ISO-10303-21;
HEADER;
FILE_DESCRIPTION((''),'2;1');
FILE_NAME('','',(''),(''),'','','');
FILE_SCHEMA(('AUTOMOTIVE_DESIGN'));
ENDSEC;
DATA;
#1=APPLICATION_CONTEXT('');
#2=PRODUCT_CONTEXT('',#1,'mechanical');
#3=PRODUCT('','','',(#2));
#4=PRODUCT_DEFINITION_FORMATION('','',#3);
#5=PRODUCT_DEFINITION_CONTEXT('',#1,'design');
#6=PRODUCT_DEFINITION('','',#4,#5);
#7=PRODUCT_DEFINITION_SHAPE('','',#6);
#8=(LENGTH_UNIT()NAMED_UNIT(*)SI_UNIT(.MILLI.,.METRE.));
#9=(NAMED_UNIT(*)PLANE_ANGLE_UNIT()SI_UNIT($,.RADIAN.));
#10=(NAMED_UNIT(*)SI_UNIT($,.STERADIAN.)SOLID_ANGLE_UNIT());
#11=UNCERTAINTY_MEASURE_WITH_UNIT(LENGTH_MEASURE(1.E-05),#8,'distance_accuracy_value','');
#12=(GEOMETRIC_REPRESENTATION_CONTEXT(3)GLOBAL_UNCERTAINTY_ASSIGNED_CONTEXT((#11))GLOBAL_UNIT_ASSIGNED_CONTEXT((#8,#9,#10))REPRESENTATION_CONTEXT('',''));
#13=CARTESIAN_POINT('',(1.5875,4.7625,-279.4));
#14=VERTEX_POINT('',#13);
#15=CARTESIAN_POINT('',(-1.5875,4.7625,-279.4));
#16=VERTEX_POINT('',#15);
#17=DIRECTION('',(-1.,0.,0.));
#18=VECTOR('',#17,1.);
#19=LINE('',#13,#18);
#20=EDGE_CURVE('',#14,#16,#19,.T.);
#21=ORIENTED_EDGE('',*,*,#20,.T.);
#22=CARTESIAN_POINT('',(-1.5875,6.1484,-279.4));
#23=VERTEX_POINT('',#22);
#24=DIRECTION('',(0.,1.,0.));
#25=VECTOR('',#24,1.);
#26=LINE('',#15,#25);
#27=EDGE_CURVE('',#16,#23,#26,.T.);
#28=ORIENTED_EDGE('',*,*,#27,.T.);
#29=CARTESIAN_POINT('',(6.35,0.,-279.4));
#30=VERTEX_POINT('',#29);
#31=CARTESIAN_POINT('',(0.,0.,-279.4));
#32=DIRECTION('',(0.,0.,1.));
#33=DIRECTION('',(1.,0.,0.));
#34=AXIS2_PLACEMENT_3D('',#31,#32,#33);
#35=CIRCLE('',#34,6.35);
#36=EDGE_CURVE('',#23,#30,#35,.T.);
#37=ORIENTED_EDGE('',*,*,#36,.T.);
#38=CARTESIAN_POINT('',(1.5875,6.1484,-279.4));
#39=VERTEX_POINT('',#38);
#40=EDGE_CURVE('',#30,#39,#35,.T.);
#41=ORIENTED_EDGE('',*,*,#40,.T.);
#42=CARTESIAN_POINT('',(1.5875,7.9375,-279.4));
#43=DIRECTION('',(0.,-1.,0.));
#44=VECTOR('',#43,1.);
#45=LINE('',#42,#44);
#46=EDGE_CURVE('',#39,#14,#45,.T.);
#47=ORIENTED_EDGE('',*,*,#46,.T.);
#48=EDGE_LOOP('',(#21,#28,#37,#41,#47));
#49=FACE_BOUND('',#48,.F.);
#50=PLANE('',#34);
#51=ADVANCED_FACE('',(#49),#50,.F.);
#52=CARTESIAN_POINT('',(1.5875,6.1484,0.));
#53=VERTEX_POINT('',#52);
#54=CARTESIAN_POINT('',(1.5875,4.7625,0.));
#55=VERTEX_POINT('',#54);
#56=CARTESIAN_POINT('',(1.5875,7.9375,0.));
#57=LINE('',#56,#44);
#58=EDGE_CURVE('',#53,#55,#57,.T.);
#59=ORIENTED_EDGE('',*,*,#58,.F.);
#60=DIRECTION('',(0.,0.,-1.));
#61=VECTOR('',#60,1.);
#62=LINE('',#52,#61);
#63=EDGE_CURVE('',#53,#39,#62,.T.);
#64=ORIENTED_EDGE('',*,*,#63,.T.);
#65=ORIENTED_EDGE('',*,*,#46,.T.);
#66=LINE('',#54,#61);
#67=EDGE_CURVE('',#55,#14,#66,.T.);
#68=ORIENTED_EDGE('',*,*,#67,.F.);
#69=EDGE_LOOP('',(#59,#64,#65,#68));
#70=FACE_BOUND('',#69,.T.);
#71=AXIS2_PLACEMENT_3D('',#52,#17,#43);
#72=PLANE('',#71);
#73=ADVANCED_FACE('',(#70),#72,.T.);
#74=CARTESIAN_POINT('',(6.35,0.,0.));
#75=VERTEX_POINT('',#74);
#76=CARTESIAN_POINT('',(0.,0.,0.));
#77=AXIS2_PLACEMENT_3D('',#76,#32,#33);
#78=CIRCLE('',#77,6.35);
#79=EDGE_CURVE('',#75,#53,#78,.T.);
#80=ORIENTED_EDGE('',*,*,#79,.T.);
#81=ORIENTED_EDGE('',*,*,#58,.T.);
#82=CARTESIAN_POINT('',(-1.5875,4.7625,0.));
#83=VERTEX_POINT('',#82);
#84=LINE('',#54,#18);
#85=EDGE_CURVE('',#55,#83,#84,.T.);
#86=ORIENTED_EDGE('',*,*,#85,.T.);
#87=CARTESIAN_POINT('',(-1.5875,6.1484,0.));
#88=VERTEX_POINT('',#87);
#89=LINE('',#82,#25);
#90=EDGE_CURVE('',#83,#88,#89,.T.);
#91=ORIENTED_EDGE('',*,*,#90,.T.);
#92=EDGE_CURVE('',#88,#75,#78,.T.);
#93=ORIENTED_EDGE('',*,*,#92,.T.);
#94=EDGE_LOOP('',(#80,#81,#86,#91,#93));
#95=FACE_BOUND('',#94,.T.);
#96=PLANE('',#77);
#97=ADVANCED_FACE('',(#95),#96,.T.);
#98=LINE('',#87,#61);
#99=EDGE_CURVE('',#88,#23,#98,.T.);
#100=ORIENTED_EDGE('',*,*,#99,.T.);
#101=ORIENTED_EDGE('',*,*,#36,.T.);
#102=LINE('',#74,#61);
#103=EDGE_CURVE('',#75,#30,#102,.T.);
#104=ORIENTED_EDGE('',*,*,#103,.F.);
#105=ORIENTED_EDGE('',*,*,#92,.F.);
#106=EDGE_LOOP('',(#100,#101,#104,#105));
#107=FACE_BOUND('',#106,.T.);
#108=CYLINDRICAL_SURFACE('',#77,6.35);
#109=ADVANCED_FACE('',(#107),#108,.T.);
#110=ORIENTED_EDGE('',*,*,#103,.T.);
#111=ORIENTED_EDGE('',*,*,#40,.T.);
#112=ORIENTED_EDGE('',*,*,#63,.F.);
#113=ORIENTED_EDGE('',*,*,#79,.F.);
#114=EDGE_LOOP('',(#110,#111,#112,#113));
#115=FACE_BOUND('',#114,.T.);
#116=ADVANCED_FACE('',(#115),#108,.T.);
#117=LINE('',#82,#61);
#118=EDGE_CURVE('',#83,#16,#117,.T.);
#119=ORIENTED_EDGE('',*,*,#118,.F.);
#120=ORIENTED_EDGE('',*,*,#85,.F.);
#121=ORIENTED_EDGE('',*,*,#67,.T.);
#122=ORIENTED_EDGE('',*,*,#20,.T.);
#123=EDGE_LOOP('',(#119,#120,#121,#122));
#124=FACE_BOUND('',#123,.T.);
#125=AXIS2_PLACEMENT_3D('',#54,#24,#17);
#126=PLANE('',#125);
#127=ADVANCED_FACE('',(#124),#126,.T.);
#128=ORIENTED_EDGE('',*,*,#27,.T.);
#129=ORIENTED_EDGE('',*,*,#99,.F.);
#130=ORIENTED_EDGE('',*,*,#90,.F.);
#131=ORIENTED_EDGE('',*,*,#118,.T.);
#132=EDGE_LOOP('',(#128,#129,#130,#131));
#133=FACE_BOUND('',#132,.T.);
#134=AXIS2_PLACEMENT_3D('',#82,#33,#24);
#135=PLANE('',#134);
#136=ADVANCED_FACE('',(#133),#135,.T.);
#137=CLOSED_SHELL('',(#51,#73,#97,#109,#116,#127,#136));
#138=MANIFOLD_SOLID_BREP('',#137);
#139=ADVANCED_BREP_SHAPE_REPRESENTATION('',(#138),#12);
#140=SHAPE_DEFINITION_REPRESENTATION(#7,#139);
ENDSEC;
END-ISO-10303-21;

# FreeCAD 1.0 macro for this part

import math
import FreeCAD as App
import Part
import Sketcher

V = App.Vector
Q = App.Units.Quantity

doc = App.newDocument("Part")
params = doc.addObject("Spreadsheet::Sheet", "Params")
for row, (alias, value) in enumerate([
    ("sketch1_radius", "0.25 in"),
    ("sketch1_width", "0.125 in"),
    ("pad1_length", "11 in"),
], start=1):
    params.set(f"A{row}", alias)
    params.set(f"B{row}", "=" + value)
    params.setAlias(f"B{row}", alias)

body = doc.addObject("PartDesign::Body", "Body")

# Sketch on XY plane
sketch1 = body.newObject("Sketcher::SketchObject", "Sketch")
sketch1.AttachmentSupport = (doc.getObject("XY_Plane"), [""])
sketch1.MapMode = "FlatFace"
sketch1.addGeometry([
    Part.ArcOfCircle(Part.Circle(V(0, 0, 0), V(0, 0, 1), 6.3), math.radians(104), math.radians(436)),
    Part.LineSegment(V(1.6, 6.1, 0), V(1.6, 4.8, 0)),
    Part.LineSegment(V(1.6, 4.8, 0), V(-1.6, 4.8, 0)),
    Part.LineSegment(V(-1.6, 4.8, 0), V(-1.6, 6.1, 0)),
], False)
sketch1.addConstraint([
    Sketcher.Constraint("Coincident", 0, 2, 1, 1),
    Sketcher.Constraint("Coincident", 1, 2, 2, 1),
    Sketcher.Constraint("Coincident", 2, 2, 3, 1),
    Sketcher.Constraint("Coincident", 3, 2, 0, 1),
    Sketcher.Constraint("Vertical", 1),
    Sketcher.Constraint("Horizontal", 2),
    Sketcher.Constraint("Vertical", 3),
    Sketcher.Constraint("Coincident", 0, 3, -1, 1),
    Sketcher.Constraint("Horizontal", 0, 2, 3, 2),
    Sketcher.Constraint("Radius", 0, Q("0.25 in")),
    Sketcher.Constraint("DistanceX", 2, 2, 2, 1, Q("0.125 in")),
    Sketcher.Constraint("DistanceY", -1, 1, 1, 2, Q("0.1875 in")),
])
sketch1.setExpression("Constraints[9]", "Params.sketch1_radius")
sketch1.setExpression("Constraints[10]", "Params.sketch1_width")
pad1 = body.newObject("PartDesign::Pad", "Pad")
pad1.Profile = sketch1
pad1.setExpression("Length", "Params.pad1_length")
pad1.Reversed = True

doc.recompute()
